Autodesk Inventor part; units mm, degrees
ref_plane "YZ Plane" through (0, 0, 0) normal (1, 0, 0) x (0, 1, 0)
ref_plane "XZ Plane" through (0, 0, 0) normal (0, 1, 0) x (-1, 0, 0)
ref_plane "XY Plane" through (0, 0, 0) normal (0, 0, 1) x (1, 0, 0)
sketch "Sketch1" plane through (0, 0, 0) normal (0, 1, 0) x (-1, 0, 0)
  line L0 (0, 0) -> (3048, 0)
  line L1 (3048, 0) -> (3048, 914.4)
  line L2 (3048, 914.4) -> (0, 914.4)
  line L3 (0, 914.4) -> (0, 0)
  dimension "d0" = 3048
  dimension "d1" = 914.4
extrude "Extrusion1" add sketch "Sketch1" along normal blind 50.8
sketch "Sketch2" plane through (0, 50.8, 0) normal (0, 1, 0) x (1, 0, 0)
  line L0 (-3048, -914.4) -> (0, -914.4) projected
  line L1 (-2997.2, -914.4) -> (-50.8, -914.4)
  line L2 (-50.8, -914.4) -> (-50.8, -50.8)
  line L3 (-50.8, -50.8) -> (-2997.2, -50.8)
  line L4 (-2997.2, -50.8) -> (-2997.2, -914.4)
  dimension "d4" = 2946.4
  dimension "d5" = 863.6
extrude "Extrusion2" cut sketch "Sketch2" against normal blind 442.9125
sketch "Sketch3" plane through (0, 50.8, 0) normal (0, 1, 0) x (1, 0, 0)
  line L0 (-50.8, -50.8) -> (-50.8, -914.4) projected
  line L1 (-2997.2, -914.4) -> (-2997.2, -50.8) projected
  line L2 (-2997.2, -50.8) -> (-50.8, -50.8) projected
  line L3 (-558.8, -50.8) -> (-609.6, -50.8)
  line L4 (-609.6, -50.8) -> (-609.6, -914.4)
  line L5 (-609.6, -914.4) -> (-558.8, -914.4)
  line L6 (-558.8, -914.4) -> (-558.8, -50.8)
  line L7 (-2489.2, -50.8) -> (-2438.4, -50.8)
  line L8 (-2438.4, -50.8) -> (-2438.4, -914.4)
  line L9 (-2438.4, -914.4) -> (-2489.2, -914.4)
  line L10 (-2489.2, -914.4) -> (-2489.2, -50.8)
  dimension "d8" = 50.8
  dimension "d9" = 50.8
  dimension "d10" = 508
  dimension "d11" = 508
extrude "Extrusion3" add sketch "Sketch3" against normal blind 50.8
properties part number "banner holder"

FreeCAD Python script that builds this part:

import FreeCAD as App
import Part
import Sketcher

V = App.Vector
Q = App.Units.Quantity

doc = App.newDocument("Part")
body = doc.addObject("PartDesign::Body", "Body")

sketch1 = body.newObject("Sketcher::SketchObject", "Sketch")
sketch1.AttachmentSupport = (doc.getObject("XZ_Plane"), [""])
sketch1.MapMode = "FlatFace"
sketch1.addGeometry(Part.LineSegment(V(0, 914.4, 0), V(0, 0, 0)), False)
sketch1.addGeometry(Part.LineSegment(V(0, 0, 0), V(-3048, 0, 0)), False)
sketch1.addGeometry(Part.LineSegment(V(-3048, 0, 0), V(-3048, 914.4, 0)), False)
sketch1.addGeometry(Part.LineSegment(V(-3048, 914.4, 0), V(0, 914.4, 0)), False)
sketch1.addConstraint(Sketcher.Constraint("Coincident", 0, 2, 1, 1))
sketch1.addConstraint(Sketcher.Constraint("Coincident", 1, 2, 2, 1))
sketch1.addConstraint(Sketcher.Constraint("Coincident", 2, 2, 3, 1))
sketch1.addConstraint(Sketcher.Constraint("Coincident", 3, 2, 0, 1))
sketch1.addConstraint(Sketcher.Constraint("Vertical", 0))
sketch1.addConstraint(Sketcher.Constraint("Horizontal", 1))
sketch1.addConstraint(Sketcher.Constraint("Vertical", 2))
sketch1.addConstraint(Sketcher.Constraint("Horizontal", 3))
sketch1.addConstraint(Sketcher.Constraint("Coincident", 0, 2, -1, 1))
sketch1.addConstraint(Sketcher.Constraint("DistanceX", 1, 2, 1, 1, Q("120 in")))
sketch1.addConstraint(Sketcher.Constraint("DistanceY", 0, 2, 0, 1, Q("36 in")))
pad1 = body.newObject("PartDesign::Pad", "Pad")
pad1.Profile = sketch1
pad1.Length = Q("2 in")
pad1.Reversed = True

sketch2 = body.newObject("Sketcher::SketchObject", "Sketch001")
sketch2.AttachmentSupport = (doc.getObject("XZ_Plane"), [""])
sketch2.MapMode = "FlatFace"
sketch2.AttachmentOffset = App.Placement(V(0, 0, -2 * 25.4), App.Rotation())
sketch2.addGeometry(Part.LineSegment(V(-2997.2, 50.8, 0), V(-2997.2, 914.4, 0)), False)
sketch2.addGeometry(Part.LineSegment(V(-2997.2, 914.4, 0), V(-50.8, 914.4, 0)), False)
sketch2.addGeometry(Part.LineSegment(V(-50.8, 914.4, 0), V(-50.8, 50.8, 0)), False)
sketch2.addGeometry(Part.LineSegment(V(-50.8, 50.8, 0), V(-2997.2, 50.8, 0)), False)
sketch2.addConstraint(Sketcher.Constraint("Coincident", 0, 2, 1, 1))
sketch2.addConstraint(Sketcher.Constraint("Coincident", 1, 2, 2, 1))
sketch2.addConstraint(Sketcher.Constraint("Coincident", 2, 2, 3, 1))
sketch2.addConstraint(Sketcher.Constraint("Coincident", 3, 2, 0, 1))
sketch2.addConstraint(Sketcher.Constraint("Vertical", 0))
sketch2.addConstraint(Sketcher.Constraint("Horizontal", 1))
sketch2.addConstraint(Sketcher.Constraint("Vertical", 2))
sketch2.addConstraint(Sketcher.Constraint("Horizontal", 3))
sketch2.addConstraint(Sketcher.Constraint("DistanceX", 1, 1, 1, 2, Q("116 in")))
sketch2.addConstraint(Sketcher.Constraint("DistanceY", 0, 1, 0, 2, Q("34 in")))
sketch2.addConstraint(Sketcher.Constraint("DistanceX", 0, 2, -1, 1, Q("118 in")))
sketch2.addConstraint(Sketcher.Constraint("DistanceY", -1, 1, 0, 2, Q("36 in")))
pocket1 = body.newObject("PartDesign::Pocket", "Pocket")
pocket1.Profile = sketch2
pocket1.Length = Q("17.4375 in")
pocket1.Reversed = True

sketch3 = body.newObject("Sketcher::SketchObject", "Sketch002")
sketch3.AttachmentSupport = (doc.getObject("XZ_Plane"), [""])
sketch3.MapMode = "FlatFace"
sketch3.AttachmentOffset = App.Placement(V(0, 0, -2 * 25.4), App.Rotation())
sketch3.addGeometry(Part.LineSegment(V(-558.8, 50.8, 0), V(-609.6, 50.8, 0)), False)
sketch3.addGeometry(Part.LineSegment(V(-609.6, 50.8, 0), V(-609.6, 914.4, 0)), False)
sketch3.addGeometry(Part.LineSegment(V(-609.6, 914.4, 0), V(-558.8, 914.4, 0)), False)
sketch3.addGeometry(Part.LineSegment(V(-558.8, 914.4, 0), V(-558.8, 50.8, 0)), False)
sketch3.addGeometry(Part.LineSegment(V(-2438.4, 50.8, 0), V(-2489.2, 50.8, 0)), False)
sketch3.addGeometry(Part.LineSegment(V(-2489.2, 50.8, 0), V(-2489.2, 914.4, 0)), False)
sketch3.addGeometry(Part.LineSegment(V(-2489.2, 914.4, 0), V(-2438.4, 914.4, 0)), False)
sketch3.addGeometry(Part.LineSegment(V(-2438.4, 914.4, 0), V(-2438.4, 50.8, 0)), False)
sketch3.addConstraint(Sketcher.Constraint("Coincident", 0, 2, 1, 1))
sketch3.addConstraint(Sketcher.Constraint("Coincident", 1, 2, 2, 1))
sketch3.addConstraint(Sketcher.Constraint("Coincident", 2, 2, 3, 1))
sketch3.addConstraint(Sketcher.Constraint("Coincident", 3, 2, 0, 1))
sketch3.addConstraint(Sketcher.Constraint("Coincident", 4, 2, 5, 1))
sketch3.addConstraint(Sketcher.Constraint("Coincident", 5, 2, 6, 1))
sketch3.addConstraint(Sketcher.Constraint("Coincident", 6, 2, 7, 1))
sketch3.addConstraint(Sketcher.Constraint("Coincident", 7, 2, 4, 1))
sketch3.addConstraint(Sketcher.Constraint("Horizontal", 0))
sketch3.addConstraint(Sketcher.Constraint("Vertical", 1))
sketch3.addConstraint(Sketcher.Constraint("Horizontal", 2))
sketch3.addConstraint(Sketcher.Constraint("Vertical", 3))
sketch3.addConstraint(Sketcher.Constraint("Horizontal", 4))
sketch3.addConstraint(Sketcher.Constraint("Vertical", 5))
sketch3.addConstraint(Sketcher.Constraint("Horizontal", 6))
sketch3.addConstraint(Sketcher.Constraint("Vertical", 7))
sketch3.addConstraint(Sketcher.Constraint("Horizontal", 3, 2, 4, 2))
sketch3.addConstraint(Sketcher.Constraint("Horizontal", 2, 2, 5, 2))
sketch3.addConstraint(Sketcher.Constraint("Equal", 2, 4))
sketch3.addConstraint(Sketcher.Constraint("DistanceX", 0, 2, 0, 1, Q("2 in")))
sketch3.addConstraint(Sketcher.Constraint("DistanceY", -1, 1, 0, 2, Q("2 in")))
sketch3.addConstraint(Sketcher.Constraint("DistanceY", 1, 1, 1, 2, Q("34 in")))
sketch3.addConstraint(Sketcher.Constraint("DistanceX", 0, 2, -1, 1, Q("24 in")))
sketch3.addConstraint(Sketcher.Constraint("DistanceX", 4, 2, -1, 1, Q("98 in")))
pad2 = body.newObject("PartDesign::Pad", "Pad001")
pad2.Profile = sketch3
pad2.Length = Q("2 in")

doc.recompute()
